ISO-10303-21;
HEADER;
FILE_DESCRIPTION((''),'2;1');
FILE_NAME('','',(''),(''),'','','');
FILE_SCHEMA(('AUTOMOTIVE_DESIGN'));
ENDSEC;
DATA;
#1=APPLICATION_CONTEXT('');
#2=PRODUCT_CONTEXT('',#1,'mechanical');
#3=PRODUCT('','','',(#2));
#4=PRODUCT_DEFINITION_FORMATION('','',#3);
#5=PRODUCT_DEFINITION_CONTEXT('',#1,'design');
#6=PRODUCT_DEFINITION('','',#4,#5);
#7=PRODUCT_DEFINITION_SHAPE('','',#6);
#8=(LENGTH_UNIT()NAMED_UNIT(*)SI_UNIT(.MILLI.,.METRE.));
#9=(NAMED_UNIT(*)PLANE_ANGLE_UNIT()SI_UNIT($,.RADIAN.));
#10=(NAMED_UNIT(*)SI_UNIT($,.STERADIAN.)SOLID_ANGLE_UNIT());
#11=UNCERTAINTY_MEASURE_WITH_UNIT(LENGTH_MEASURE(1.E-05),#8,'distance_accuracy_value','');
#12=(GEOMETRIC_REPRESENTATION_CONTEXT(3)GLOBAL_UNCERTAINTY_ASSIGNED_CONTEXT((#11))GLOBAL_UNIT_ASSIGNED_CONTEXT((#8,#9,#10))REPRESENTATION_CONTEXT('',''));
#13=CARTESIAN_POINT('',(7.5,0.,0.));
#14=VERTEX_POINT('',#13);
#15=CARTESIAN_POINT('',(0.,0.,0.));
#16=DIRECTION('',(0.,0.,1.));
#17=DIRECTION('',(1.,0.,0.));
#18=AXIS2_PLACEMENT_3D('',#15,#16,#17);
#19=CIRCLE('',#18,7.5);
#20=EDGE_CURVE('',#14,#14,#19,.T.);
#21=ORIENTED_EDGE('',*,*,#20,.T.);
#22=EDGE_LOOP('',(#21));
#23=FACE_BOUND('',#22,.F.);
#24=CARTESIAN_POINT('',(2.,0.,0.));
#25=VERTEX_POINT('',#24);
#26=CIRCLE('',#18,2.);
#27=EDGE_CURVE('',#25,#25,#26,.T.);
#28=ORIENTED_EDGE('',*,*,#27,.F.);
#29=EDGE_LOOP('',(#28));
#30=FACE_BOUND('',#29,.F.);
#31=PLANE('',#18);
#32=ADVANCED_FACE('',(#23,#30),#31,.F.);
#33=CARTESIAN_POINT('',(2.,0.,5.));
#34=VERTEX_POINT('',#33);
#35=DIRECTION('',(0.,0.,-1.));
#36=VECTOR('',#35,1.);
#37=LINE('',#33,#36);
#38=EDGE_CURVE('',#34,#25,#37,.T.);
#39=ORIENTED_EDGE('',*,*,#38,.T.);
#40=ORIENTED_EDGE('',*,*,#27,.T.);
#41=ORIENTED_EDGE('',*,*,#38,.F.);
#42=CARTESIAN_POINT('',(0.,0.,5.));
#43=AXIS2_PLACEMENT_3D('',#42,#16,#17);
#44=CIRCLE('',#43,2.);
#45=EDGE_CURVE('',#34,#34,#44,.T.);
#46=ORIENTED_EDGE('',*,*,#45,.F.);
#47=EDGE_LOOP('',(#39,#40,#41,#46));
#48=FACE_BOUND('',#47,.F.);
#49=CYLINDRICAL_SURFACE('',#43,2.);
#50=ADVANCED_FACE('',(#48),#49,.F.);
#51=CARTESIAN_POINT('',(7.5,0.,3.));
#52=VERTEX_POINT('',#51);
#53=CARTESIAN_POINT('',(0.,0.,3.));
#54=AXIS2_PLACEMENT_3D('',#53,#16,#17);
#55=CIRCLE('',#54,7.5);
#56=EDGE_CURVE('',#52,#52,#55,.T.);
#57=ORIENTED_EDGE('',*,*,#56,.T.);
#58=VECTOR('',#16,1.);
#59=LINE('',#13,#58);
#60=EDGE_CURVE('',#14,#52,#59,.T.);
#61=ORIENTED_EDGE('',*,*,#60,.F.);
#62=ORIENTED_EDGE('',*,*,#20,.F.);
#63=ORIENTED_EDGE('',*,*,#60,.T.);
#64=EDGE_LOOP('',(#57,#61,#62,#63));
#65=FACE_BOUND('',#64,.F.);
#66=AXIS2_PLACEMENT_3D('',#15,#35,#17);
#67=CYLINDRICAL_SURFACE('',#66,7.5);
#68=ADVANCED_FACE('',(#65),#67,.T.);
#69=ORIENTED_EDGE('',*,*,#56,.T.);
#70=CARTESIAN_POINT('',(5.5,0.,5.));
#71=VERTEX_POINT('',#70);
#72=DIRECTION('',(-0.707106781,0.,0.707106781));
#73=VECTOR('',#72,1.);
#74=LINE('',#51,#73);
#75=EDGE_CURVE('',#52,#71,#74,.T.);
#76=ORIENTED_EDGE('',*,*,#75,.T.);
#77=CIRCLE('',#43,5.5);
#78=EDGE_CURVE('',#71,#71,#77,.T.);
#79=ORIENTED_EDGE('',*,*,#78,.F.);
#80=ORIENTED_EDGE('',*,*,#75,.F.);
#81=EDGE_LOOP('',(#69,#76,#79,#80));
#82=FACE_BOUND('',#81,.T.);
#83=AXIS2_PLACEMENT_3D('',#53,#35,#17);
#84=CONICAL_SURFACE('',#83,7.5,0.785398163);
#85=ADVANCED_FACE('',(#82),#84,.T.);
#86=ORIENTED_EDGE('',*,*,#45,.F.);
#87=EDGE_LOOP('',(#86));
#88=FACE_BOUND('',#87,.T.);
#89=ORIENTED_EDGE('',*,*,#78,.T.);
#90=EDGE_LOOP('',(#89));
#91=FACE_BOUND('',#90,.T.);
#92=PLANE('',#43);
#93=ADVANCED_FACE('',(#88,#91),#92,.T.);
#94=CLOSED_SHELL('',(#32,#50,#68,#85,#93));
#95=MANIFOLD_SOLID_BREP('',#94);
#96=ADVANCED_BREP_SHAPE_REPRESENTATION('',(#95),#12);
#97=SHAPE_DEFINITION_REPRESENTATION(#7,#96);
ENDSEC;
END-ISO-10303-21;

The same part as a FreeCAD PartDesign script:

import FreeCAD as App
import Part
import Sketcher
from FreeCAD import Vector
Q = App.Units.Quantity


def edges_at(feature, points):
    """Names of the edges that pass closest to the given points."""
    edges = feature.Shape.Edges
    near = lambda p: min(range(len(edges)), key=lambda i: edges[i].distToShape(Part.Vertex(*p))[0])
    return sorted({f"Edge{near(p) + 1}" for p in points})

doc = App.newDocument("Part")
body = doc.addObject("PartDesign::Body", "Body")

# Sketch on XY plane
sketch1 = body.newObject("Sketcher::SketchObject", "Sketch")
sketch1.AttachmentSupport = (doc.getObject("XY_Plane"), [""])
sketch1.MapMode = "FlatFace"
sketch1.addGeometry(Part.Circle(Vector(0, 0, 0), Vector(0, 0, 1), 8), False)
sketch1.addConstraint([
    Sketcher.Constraint("Coincident", 0, 3, -1, 1),
    Sketcher.Constraint("Diameter", 0, Q("15 mm")),
])
pad1 = body.newObject("PartDesign::Pad", "Pad")
pad1.Profile = sketch1
pad1.Length = 5

# Sketch on XY plane
sketch2 = body.newObject("Sketcher::SketchObject", "Sketch001")
sketch2.AttachmentSupport = (doc.getObject("XY_Plane"), [""])
sketch2.MapMode = "FlatFace"
sketch2.AttachmentOffset = App.Placement(Vector(0, 0, 5), App.Rotation())
sketch2.addGeometry(Part.Circle(Vector(0, 0, 0), Vector(0, 0, 1), 2), False)
sketch2.addConstraint([
    Sketcher.Constraint("Coincident", 0, 3, -1, 1),
    Sketcher.Constraint("Diameter", 0, Q("4 mm")),
])
pocket1 = body.newObject("PartDesign::Pocket", "Pocket")
pocket1.Profile = sketch2
pocket1.Length = 25
doc.recompute()

chamfer = body.newObject("PartDesign::Chamfer", "Chamfer")
chamfer.Base = (pocket1, edges_at(pocket1, [(-7.5, 0, 5)]))
chamfer.Size = 2

doc.recompute()
